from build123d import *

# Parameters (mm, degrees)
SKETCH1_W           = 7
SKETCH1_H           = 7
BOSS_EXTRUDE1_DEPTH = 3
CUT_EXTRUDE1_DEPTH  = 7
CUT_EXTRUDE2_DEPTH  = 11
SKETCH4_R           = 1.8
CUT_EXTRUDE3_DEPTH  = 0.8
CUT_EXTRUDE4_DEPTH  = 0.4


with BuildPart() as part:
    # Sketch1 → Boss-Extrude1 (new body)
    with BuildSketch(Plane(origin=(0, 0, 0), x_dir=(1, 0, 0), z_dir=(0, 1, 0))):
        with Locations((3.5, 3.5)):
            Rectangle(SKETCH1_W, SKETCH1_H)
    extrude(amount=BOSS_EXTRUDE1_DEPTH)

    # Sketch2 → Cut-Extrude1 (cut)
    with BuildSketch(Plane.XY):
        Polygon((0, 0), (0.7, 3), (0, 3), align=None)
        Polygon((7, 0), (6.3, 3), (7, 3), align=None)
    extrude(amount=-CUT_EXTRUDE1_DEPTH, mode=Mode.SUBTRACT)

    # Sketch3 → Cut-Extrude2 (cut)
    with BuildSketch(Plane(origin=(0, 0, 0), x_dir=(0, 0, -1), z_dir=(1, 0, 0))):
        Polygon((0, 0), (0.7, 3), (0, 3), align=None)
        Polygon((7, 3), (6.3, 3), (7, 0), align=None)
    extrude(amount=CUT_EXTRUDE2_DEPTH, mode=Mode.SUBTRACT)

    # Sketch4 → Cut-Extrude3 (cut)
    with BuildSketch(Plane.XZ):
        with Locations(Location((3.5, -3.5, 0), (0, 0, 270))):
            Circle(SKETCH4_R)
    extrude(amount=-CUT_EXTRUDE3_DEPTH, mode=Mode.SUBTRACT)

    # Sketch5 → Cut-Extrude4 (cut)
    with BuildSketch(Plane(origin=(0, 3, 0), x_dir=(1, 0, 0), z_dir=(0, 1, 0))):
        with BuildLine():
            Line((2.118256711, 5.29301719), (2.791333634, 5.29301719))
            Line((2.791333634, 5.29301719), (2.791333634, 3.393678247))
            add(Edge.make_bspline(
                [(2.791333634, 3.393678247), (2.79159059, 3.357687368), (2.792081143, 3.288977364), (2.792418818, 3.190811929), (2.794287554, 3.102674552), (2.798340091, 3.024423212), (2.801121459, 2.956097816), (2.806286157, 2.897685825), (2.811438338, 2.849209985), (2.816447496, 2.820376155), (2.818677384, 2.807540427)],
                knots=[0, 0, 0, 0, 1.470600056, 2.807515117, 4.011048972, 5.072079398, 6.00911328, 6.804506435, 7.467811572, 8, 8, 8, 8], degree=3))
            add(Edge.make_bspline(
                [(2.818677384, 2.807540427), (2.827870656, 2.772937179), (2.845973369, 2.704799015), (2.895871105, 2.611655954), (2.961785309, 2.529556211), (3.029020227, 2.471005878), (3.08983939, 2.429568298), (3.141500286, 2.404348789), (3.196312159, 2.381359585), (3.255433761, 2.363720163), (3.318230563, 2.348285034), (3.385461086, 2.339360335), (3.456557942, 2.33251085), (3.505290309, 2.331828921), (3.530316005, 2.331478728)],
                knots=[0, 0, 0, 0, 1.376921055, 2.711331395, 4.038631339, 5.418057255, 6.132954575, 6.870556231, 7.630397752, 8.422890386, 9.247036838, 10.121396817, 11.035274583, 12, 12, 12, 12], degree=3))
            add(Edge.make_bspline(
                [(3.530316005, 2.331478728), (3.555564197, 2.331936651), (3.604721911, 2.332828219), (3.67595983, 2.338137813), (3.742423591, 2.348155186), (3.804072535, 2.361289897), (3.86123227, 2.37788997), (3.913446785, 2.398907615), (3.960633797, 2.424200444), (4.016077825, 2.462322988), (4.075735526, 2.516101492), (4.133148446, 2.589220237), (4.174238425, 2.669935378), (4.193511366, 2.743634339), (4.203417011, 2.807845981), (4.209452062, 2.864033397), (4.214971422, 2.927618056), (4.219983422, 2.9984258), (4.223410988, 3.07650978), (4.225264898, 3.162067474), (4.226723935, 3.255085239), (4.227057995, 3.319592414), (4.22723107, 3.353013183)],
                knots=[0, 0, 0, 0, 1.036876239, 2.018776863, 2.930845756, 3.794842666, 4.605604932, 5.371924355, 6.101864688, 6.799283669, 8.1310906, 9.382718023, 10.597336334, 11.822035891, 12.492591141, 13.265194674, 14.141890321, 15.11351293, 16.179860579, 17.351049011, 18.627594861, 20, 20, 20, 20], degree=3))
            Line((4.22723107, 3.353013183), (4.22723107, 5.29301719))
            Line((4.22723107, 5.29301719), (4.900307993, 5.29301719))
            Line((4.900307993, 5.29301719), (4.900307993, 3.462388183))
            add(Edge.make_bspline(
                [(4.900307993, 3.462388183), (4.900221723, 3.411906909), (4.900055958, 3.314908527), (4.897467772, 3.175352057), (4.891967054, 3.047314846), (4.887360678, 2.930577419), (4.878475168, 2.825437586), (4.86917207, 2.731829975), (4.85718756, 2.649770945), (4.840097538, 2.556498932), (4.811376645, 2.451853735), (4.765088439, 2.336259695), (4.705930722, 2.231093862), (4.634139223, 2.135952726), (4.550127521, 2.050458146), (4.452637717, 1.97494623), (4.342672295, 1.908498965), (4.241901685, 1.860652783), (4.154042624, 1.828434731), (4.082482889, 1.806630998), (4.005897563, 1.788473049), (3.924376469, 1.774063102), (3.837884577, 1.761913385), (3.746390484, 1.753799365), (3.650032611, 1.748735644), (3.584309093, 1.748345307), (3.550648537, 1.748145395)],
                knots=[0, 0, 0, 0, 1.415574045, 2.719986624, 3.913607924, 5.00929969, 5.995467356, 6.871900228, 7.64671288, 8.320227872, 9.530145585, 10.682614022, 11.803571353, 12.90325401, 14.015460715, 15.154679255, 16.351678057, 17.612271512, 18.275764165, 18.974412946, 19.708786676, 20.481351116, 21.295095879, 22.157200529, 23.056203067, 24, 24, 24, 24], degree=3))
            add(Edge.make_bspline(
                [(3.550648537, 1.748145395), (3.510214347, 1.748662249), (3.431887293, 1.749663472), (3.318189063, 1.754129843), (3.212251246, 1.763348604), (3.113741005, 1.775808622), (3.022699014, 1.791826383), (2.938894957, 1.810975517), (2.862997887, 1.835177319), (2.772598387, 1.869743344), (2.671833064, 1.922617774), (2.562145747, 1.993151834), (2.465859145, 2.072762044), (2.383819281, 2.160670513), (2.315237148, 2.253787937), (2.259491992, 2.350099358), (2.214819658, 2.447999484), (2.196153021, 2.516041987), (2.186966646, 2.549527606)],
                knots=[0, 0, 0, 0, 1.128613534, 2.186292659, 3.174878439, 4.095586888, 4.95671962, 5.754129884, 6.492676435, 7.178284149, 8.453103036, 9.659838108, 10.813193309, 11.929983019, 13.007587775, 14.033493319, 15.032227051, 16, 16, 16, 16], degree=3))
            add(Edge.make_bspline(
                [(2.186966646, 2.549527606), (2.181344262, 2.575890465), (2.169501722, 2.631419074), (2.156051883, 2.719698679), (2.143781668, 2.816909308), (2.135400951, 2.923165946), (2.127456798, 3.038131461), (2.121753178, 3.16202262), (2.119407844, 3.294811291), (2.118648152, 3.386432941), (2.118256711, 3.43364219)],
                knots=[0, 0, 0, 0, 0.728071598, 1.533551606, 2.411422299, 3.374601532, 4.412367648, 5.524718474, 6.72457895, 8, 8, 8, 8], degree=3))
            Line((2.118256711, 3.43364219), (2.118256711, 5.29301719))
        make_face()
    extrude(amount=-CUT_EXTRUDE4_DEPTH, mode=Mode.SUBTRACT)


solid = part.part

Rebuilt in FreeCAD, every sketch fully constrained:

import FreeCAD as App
import Part
import Sketcher

V = App.Vector


def add_polygon(sketch, points):
    """Adds a closed chain of lines whose ends are joined by coincident constraints."""
    first, n = sketch.GeometryCount, len(points)
    for a, b in zip(points, points[1:] + points[:1]):
        sketch.addGeometry(Part.LineSegment(App.Vector(*a, 0), App.Vector(*b, 0)), False)
    for i in range(n):
        sketch.addConstraint(Sketcher.Constraint("Coincident", first + i, 2, first + (i + 1) % n, 1))

doc = App.newDocument("Part")
params = doc.addObject("Spreadsheet::Sheet", "Params")
for row, (alias, value) in enumerate([
    ("sketch1_width", "7 mm"),
    ("pad1_length", "3 mm"),
    ("sketch2_height", "3 mm"),
    ("sketch2_width", "0.7 mm"),
    ("pocket1_length", "7 mm"),
    ("sketch3_width", "3 mm"),
    ("sketch3_height", "0.7 mm"),
    ("pocket2_length", "11 mm"),
    ("sketch4_diameter", "3.6 mm"),
    ("pocket3_length", "0.8 mm"),
    ("pocket4_length", "0.4 mm"),
], start=1):
    params.set(f"A{row}", alias)
    params.set(f"B{row}", "=" + value)
    params.setAlias(f"B{row}", alias)

body = doc.addObject("PartDesign::Body", "Body")

sketch1 = body.newObject("Sketcher::SketchObject", "Sketch")
sketch1.AttachmentSupport = (doc.getObject("XZ_Plane"), [""])
sketch1.MapMode = "FlatFace"
add_polygon(sketch1, [(0, -7), (0, 0), (7, 0), (7, -7)])
sketch1.addConstraint([
    Sketcher.Constraint("Vertical", 0),
    Sketcher.Constraint("Horizontal", 1),
    Sketcher.Constraint("Vertical", 2),
    Sketcher.Constraint("Horizontal", 3),
    Sketcher.Constraint("Coincident", 0, 2, -1, 1),
    Sketcher.Constraint("Equal", 3, 0),
    Sketcher.Constraint("DistanceX", 1, 1, 1, 2, 7.0),
])
sketch1.setExpression("Constraints[10]", "Params.sketch1_width")
pad1 = body.newObject("PartDesign::Pad", "Pad")
pad1.Profile = sketch1
pad1.setExpression("Length", "Params.pad1_length")
pad1.Reversed = True

sketch2 = body.newObject("Sketcher::SketchObject", "Sketch001")
sketch2.AttachmentSupport = (doc.getObject("XY_Plane"), [""])
sketch2.MapMode = "FlatFace"
add_polygon(sketch2, [(0, 0), (0.7, 3), (0, 3)])
add_polygon(sketch2, [(6.3, 3), (7, 0), (7, 3)])
sketch2.addConstraint([
    Sketcher.Constraint("Horizontal", 1),
    Sketcher.Constraint("Vertical", 2),
    Sketcher.Constraint("Vertical", 4),
    Sketcher.Constraint("Horizontal", 5),
    Sketcher.Constraint("Coincident", 2, 2, -1, 1),
    Sketcher.Constraint("PointOnObject", 3, 2, -1),
    Sketcher.Constraint("Horizontal", 1, 2, 4, 2),
    Sketcher.Constraint("Equal", 1, 5),
    Sketcher.Constraint("DistanceY", 2, 2, 2, 1, 3.0),
    Sketcher.Constraint("DistanceX", 1, 2, 1, 1, 0.7),
    Sketcher.Constraint("DistanceX", -1, 1, 3, 2, 7.0),
])
sketch2.setExpression("Constraints[14]", "Params.sketch2_height")
sketch2.setExpression("Constraints[15]", "Params.sketch2_width")
pocket1 = body.newObject("PartDesign::Pocket", "Pocket")
pocket1.Profile = sketch2
pocket1.setExpression("Length", "Params.pocket1_length")

sketch3 = body.newObject("Sketcher::SketchObject", "Sketch002")
sketch3.AttachmentSupport = (doc.getObject("YZ_Plane"), [""])
sketch3.MapMode = "FlatFace"
add_polygon(sketch3, [(0, 0), (3, -0.7), (3, 0)])
add_polygon(sketch3, [(3, -7), (3, -6.3), (0, -7)])
sketch3.addConstraint([
    Sketcher.Constraint("Vertical", 1),
    Sketcher.Constraint("Horizontal", 2),
    Sketcher.Constraint("Vertical", 3),
    Sketcher.Constraint("Horizontal", 5),
    Sketcher.Constraint("Coincident", 2, 2, -1, 1),
    Sketcher.Constraint("PointOnObject", 4, 2, -2),
    Sketcher.Constraint("Vertical", 1, 2, 3, 2),
    Sketcher.Constraint("Equal", 1, 3),
    Sketcher.Constraint("DistanceX", 2, 2, 2, 1, 3.0),
    Sketcher.Constraint("DistanceY", 1, 1, 1, 2, 0.7),
    Sketcher.Constraint("DistanceY", 4, 2, -1, 1, 7.0),
])
sketch3.setExpression("Constraints[14]", "Params.sketch3_width")
sketch3.setExpression("Constraints[15]", "Params.sketch3_height")
pocket2 = body.newObject("PartDesign::Pocket", "Pocket001")
pocket2.Profile = sketch3
pocket2.setExpression("Length", "Params.pocket2_length")
pocket2.Reversed = True

sketch4 = body.newObject("Sketcher::SketchObject", "Sketch003")
sketch4.AttachmentSupport = (doc.getObject("XZ_Plane"), [""])
sketch4.MapMode = "FlatFace"
sketch4.addGeometry(Part.Circle(V(3.5, -3.5, 0), V(0, 0, 1), 1.8), False)
sketch4.addConstraint([
    Sketcher.Constraint("Diameter", 0, 3.6),
    Sketcher.Constraint("DistanceX", -1, 1, 0, 3, 3.5),
    Sketcher.Constraint("DistanceY", 0, 3, -1, 1, 3.5),
])
sketch4.setExpression("Constraints[0]", "Params.sketch4_diameter")
pocket3 = body.newObject("PartDesign::Pocket", "Pocket002")
pocket3.Profile = sketch4
pocket3.setExpression("Length", "Params.pocket3_length")

sketch5 = body.newObject("Sketcher::SketchObject", "Sketch004")
sketch5.AttachmentSupport = (doc.getObject("XZ_Plane"), [""])
sketch5.MapMode = "FlatFace"
sketch5.AttachmentOffset = App.Placement(V(0, 0, -3), App.Rotation())
sketch5.addGeometry([
    Part.LineSegment(V(2.791334, -5.293017, 0), V(2.118257, -5.293017, 0)),
    Part.LineSegment(V(2.118257, -5.293017, 0), V(2.118257, -3.433642, 0)),
    Part.BSplineCurve([V(2.186967, -2.549528, 0), V(2.181344, -2.57589, 0), V(2.169502, -2.631419, 0), V(2.156052, -2.719699, 0), V(2.143782, -2.816909, 0), V(2.135401, -2.923166, 0), V(2.127457, -3.038131, 0), V(2.121753, -3.162023, 0), V(2.119408, -3.294811, 0), V(2.118648, -3.386433, 0), V(2.118257, -3.433642, 0)], [4, 1, 1, 1, 1, 1, 1, 1, 4], [0, 0.728071598, 1.533551606, 2.411422299, 3.374601532, 4.412367648, 5.524718474, 6.72457895, 8], False, 3, [1, 1, 1, 1, 1, 1, 1, 1, 1, 1, 1], False),
    Part.BSplineCurve([V(3.550649, -1.748145, 0), V(3.510214, -1.748662, 0), V(3.431887, -1.749663, 0), V(3.318189, -1.75413, 0), V(3.212251, -1.763349, 0), V(3.113741, -1.775809, 0), V(3.022699, -1.791826, 0), V(2.938895, -1.810976, 0), V(2.862998, -1.835177, 0), V(2.772598, -1.869743, 0), V(2.671833, -1.922618, 0), V(2.562146, -1.993152, 0), V(2.465859, -2.072762, 0), V(2.383819, -2.160671, 0), V(2.315237, -2.253788, 0), V(2.259492, -2.350099, 0), V(2.21482, -2.447999, 0), V(2.196153, -2.516042, 0), V(2.186967, -2.549528, 0)], [4, 1, 1, 1, 1, 1, 1, 1, 1, 1, 1, 1, 1, 1, 1, 1, 4], [0, 1.128613534, 2.186292659, 3.174878439, 4.095586888, 4.95671962, 5.754129884, 6.492676435, 7.178284149, 8.453103036, 9.659838108, 10.813193309, 11.929983019, 13.007587775, 14.033493319, 15.032227051, 16], False, 3, [1, 1, 1, 1, 1, 1, 1, 1, 1, 1, 1, 1, 1, 1, 1, 1, 1, 1, 1], False),
    Part.BSplineCurve([V(4.900308, -3.462388, 0), V(4.900222, -3.411907, 0), V(4.900056, -3.314909, 0), V(4.897468, -3.175352, 0), V(4.891967, -3.047315, 0), V(4.887361, -2.930577, 0), V(4.878475, -2.825438, 0), V(4.869172, -2.73183, 0), V(4.857188, -2.649771, 0), V(4.840098, -2.556499, 0), V(4.811377, -2.451854, 0), V(4.765088, -2.33626, 0), V(4.705931, -2.231094, 0), V(4.634139, -2.135953, 0), V(4.550128, -2.050458, 0), V(4.452638, -1.974946, 0), V(4.342672, -1.908499, 0), V(4.241902, -1.860653, 0), V(4.154043, -1.828435, 0), V(4.082483, -1.806631, 0), V(4.005898, -1.788473, 0), V(3.924376, -1.774063, 0), V(3.837885, -1.761913, 0), V(3.74639, -1.753799, 0), V(3.650033, -1.748736, 0), V(3.584309, -1.748345, 0), V(3.550649, -1.748145, 0)], [4, 1, 1, 1, 1, 1, 1, 1, 1, 1, 1, 1, 1, 1, 1, 1, 1, 1, 1, 1, 1, 1, 1, 1, 4], [0, 1.415574045, 2.719986624, 3.913607924, 5.00929969, 5.995467356, 6.871900228, 7.64671288, 8.320227872, 9.530145585, 10.682614022, 11.803571353, 12.90325401, 14.015460715, 15.154679255, 16.351678057, 17.612271512, 18.275764165, 18.974412946, 19.708786676, 20.481351116, 21.295095879, 22.157200529, 23.056203067, 24], False, 3, [1, 1, 1, 1, 1, 1, 1, 1, 1, 1, 1, 1, 1, 1, 1, 1, 1, 1, 1, 1, 1, 1, 1, 1, 1, 1, 1], False),
    Part.LineSegment(V(4.900308, -3.462388, 0), V(4.900308, -5.293017, 0)),
    Part.LineSegment(V(4.900308, -5.293017, 0), V(4.227231, -5.293017, 0)),
    Part.LineSegment(V(4.227231, -5.293017, 0), V(4.227231, -3.353013, 0)),
    Part.BSplineCurve([V(3.530316, -2.331479, 0), V(3.555564, -2.331937, 0), V(3.604722, -2.332828, 0), V(3.67596, -2.338138, 0), V(3.742424, -2.348155, 0), V(3.804073, -2.36129, 0), V(3.861232, -2.37789, 0), V(3.913447, -2.398908, 0), V(3.960634, -2.4242, 0), V(4.016078, -2.462323, 0), V(4.075736, -2.516101, 0), V(4.133148, -2.58922, 0), V(4.174238, -2.669935, 0), V(4.193511, -2.743634, 0), V(4.203417, -2.807846, 0), V(4.209452, -2.864033, 0), V(4.214971, -2.927618, 0), V(4.219983, -2.998426, 0), V(4.223411, -3.07651, 0), V(4.225265, -3.162067, 0), V(4.226724, -3.255085, 0), V(4.227058, -3.319592, 0), V(4.227231, -3.353013, 0)], [4, 1, 1, 1, 1, 1, 1, 1, 1, 1, 1, 1, 1, 1, 1, 1, 1, 1, 1, 1, 4], [0, 1.036876239, 2.018776863, 2.930845756, 3.794842666, 4.605604932, 5.371924355, 6.101864688, 6.799283669, 8.1310906, 9.382718023, 10.597336334, 11.822035891, 12.492591141, 13.265194674, 14.141890321, 15.11351293, 16.179860579, 17.351049011, 18.627594861, 20], False, 3, [1, 1, 1, 1, 1, 1, 1, 1, 1, 1, 1, 1, 1, 1, 1, 1, 1, 1, 1, 1, 1, 1, 1], False),
    Part.BSplineCurve([V(2.818677, -2.80754, 0), V(2.827871, -2.772937, 0), V(2.845973, -2.704799, 0), V(2.895871, -2.611656, 0), V(2.961785, -2.529556, 0), V(3.02902, -2.471006, 0), V(3.089839, -2.429568, 0), V(3.1415, -2.404349, 0), V(3.196312, -2.38136, 0), V(3.255434, -2.36372, 0), V(3.318231, -2.348285, 0), V(3.385461, -2.33936, 0), V(3.456558, -2.332511, 0), V(3.50529, -2.331829, 0), V(3.530316, -2.331479, 0)], [4, 1, 1, 1, 1, 1, 1, 1, 1, 1, 1, 1, 4], [0, 1.376921055, 2.711331395, 4.038631339, 5.418057255, 6.132954575, 6.870556231, 7.630397752, 8.422890386, 9.247036838, 10.121396817, 11.035274583, 12], False, 3, [1, 1, 1, 1, 1, 1, 1, 1, 1, 1, 1, 1, 1, 1, 1], False),
    Part.BSplineCurve([V(2.791334, -3.393678, 0), V(2.791591, -3.357687, 0), V(2.792081, -3.288977, 0), V(2.792419, -3.190812, 0), V(2.794288, -3.102675, 0), V(2.79834, -3.024423, 0), V(2.801121, -2.956098, 0), V(2.806286, -2.897686, 0), V(2.811438, -2.84921, 0), V(2.816447, -2.820376, 0), V(2.818677, -2.80754, 0)], [4, 1, 1, 1, 1, 1, 1, 1, 4], [0, 1.470600056, 2.807515117, 4.011048972, 5.072079398, 6.00911328, 6.804506435, 7.467811572, 8], False, 3, [1, 1, 1, 1, 1, 1, 1, 1, 1, 1, 1], False),
    Part.LineSegment(V(2.791334, -3.393678, 0), V(2.791334, -5.293017, 0)),
], False)
sketch5.addConstraint([
    Sketcher.Constraint("Block", 2),
    Sketcher.Constraint("Block", 3),
    Sketcher.Constraint("Block", 4),
    Sketcher.Constraint("Block", 8),
    Sketcher.Constraint("Block", 9),
    Sketcher.Constraint("Block", 10),
    Sketcher.Constraint("Coincident", 0, 2, 1, 1),
    Sketcher.Constraint("Coincident", 1, 2, 2, 2),
    Sketcher.Constraint("Coincident", 4, 1, 5, 1),
    Sketcher.Constraint("Coincident", 5, 2, 6, 1),
    Sketcher.Constraint("Coincident", 6, 2, 7, 1),
    Sketcher.Constraint("Coincident", 7, 2, 8, 2),
    Sketcher.Constraint("Coincident", 10, 1, 11, 1),
    Sketcher.Constraint("Coincident", 11, 2, 0, 1),
    Sketcher.Constraint("Horizontal", 0),
    Sketcher.Constraint("Vertical", 1),
    Sketcher.Constraint("Vertical", 5),
    Sketcher.Constraint("Horizontal", 6),
    Sketcher.Constraint("Vertical", 7),
    Sketcher.Constraint("Vertical", 11),
    Sketcher.Constraint("Horizontal", 0, 2, 5, 2),
    Sketcher.Constraint("DistanceY", 5, 2, 5, 1, 1.830629),
])
pocket4 = body.newObject("PartDesign::Pocket", "Pocket003")
pocket4.Profile = sketch5
pocket4.setExpression("Length", "Params.pocket4_length")
pocket4.Reversed = True

doc.recompute()
